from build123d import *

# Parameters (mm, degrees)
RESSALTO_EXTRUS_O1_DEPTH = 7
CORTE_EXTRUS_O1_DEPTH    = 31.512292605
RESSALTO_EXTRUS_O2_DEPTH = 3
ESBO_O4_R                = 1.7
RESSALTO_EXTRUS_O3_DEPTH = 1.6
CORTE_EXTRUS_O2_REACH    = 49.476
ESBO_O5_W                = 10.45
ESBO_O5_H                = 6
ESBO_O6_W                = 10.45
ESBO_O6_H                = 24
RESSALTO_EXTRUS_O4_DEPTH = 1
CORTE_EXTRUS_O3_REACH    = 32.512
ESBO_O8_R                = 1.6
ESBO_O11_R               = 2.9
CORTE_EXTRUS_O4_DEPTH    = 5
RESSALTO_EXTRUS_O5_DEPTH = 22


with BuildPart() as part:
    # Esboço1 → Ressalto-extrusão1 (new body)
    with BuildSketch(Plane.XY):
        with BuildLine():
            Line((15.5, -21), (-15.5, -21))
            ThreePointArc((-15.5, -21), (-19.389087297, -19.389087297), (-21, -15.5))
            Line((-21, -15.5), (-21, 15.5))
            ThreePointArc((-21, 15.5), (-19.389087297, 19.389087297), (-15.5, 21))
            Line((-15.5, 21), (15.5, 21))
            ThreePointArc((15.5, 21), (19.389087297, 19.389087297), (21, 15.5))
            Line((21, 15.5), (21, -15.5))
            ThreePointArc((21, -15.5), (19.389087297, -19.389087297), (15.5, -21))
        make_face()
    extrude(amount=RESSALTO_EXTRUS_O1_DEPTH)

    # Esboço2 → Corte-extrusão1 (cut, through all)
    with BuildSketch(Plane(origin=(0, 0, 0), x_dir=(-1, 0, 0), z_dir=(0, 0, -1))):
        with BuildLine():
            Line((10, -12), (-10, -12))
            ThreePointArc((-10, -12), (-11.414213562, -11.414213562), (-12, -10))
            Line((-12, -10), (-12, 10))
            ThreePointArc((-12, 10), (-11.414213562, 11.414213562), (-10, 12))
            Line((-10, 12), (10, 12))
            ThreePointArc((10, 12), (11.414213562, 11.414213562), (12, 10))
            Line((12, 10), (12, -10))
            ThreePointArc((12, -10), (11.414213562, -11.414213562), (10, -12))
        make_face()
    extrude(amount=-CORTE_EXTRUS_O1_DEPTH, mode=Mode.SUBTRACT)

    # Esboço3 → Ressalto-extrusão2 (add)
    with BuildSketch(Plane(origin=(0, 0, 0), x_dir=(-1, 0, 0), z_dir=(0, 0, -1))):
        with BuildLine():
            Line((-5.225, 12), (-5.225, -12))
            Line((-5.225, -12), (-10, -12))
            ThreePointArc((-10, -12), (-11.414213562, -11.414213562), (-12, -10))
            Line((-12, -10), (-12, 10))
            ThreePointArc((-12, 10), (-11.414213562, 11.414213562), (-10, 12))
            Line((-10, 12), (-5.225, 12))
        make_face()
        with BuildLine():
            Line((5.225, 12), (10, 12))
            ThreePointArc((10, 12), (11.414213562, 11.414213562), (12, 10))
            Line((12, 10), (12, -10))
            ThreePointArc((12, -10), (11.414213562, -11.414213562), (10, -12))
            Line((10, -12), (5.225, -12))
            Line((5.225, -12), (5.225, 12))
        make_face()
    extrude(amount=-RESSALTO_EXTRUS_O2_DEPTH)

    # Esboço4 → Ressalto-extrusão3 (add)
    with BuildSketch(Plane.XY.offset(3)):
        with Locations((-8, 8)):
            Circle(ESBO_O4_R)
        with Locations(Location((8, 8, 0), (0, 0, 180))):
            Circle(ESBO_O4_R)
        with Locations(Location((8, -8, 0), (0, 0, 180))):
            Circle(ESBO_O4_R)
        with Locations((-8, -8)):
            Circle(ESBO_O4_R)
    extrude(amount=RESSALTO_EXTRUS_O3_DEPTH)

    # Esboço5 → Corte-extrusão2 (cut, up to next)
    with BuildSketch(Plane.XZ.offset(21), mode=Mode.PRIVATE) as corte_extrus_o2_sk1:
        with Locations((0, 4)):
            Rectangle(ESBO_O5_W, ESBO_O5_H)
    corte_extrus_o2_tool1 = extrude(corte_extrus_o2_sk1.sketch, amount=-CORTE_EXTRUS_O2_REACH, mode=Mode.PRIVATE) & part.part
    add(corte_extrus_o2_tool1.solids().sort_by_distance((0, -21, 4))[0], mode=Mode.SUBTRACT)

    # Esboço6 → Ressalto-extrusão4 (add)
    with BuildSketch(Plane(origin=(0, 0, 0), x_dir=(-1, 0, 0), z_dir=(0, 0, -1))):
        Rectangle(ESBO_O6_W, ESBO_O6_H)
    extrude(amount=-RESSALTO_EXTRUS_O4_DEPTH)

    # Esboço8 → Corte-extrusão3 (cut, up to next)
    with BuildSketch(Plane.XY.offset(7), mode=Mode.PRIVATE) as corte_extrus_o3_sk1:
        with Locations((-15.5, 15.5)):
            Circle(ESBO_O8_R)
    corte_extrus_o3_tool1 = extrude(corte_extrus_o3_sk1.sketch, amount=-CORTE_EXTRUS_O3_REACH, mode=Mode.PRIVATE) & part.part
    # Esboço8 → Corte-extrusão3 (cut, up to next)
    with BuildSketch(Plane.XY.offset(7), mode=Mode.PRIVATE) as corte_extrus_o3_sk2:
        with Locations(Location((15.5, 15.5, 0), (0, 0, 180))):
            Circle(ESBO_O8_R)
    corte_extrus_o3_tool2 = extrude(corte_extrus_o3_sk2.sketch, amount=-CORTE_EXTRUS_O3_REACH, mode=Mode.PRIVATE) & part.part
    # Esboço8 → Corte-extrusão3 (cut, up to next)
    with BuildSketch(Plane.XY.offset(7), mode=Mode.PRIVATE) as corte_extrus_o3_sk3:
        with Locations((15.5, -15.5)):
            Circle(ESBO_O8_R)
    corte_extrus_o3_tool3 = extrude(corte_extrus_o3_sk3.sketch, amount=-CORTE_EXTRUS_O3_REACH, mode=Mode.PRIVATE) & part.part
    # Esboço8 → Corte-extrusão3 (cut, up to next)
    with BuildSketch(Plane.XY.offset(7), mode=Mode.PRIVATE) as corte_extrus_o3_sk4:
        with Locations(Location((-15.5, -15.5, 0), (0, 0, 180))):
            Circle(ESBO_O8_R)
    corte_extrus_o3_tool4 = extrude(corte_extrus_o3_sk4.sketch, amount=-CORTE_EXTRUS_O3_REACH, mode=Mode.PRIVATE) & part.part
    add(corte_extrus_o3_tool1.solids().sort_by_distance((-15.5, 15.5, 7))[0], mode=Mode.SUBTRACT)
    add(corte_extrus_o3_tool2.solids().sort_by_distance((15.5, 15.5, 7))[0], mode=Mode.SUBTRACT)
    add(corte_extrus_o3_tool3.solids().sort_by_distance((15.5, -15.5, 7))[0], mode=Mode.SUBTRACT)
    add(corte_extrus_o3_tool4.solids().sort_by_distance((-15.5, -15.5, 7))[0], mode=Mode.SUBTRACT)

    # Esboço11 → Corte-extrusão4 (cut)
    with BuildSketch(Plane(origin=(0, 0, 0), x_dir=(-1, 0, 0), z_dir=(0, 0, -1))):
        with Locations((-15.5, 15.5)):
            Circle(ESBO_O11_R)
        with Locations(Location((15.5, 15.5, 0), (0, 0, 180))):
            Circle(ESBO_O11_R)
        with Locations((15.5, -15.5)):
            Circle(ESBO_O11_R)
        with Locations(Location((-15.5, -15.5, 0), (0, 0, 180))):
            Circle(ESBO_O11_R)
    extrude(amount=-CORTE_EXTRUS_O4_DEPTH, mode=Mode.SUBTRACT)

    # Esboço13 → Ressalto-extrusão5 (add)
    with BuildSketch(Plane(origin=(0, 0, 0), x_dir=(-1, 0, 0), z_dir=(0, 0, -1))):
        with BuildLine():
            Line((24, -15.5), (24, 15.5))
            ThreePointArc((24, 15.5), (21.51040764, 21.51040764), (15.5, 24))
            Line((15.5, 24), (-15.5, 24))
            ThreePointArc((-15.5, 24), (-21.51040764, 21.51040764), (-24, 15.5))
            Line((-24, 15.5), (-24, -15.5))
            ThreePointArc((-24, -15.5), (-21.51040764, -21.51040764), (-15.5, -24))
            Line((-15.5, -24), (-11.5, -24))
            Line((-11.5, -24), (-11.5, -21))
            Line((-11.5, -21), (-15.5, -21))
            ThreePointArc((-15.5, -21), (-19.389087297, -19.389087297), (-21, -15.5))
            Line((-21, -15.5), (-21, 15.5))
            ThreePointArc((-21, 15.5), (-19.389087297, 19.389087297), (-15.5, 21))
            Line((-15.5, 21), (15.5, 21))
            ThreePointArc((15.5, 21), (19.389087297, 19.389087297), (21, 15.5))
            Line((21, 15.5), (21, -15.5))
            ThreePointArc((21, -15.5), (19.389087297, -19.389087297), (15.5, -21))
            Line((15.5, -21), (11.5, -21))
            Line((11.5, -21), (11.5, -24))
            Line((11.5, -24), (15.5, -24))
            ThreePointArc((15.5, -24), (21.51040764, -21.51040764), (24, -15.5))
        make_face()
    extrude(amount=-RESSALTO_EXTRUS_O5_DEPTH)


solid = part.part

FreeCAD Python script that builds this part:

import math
import FreeCAD as App
import Part
import Sketcher

V = App.Vector
Q = App.Units.Quantity


def add_polygon(sketch, points):
    """Adds a closed chain of lines whose ends are joined by coincident constraints."""
    first, n = sketch.GeometryCount, len(points)
    for a, b in zip(points, points[1:] + points[:1]):
        sketch.addGeometry(Part.LineSegment(App.Vector(*a, 0), App.Vector(*b, 0)), False)
    for i in range(n):
        sketch.addConstraint(Sketcher.Constraint("Coincident", first + i, 2, first + (i + 1) % n, 1))

doc = App.newDocument("Part")
body = doc.addObject("PartDesign::Body", "Body")

sketch1 = body.newObject("Sketcher::SketchObject", "Sketch")
sketch1.AttachmentSupport = (doc.getObject("XY_Plane"), [""])
sketch1.MapMode = "FlatFace"
sketch1.addGeometry(Part.LineSegment(V(-15.5, -21, 0), V(15.5, -21, 0)), False)
sketch1.addGeometry(Part.ArcOfCircle(Part.Circle(V(15.5, -15.5, 0), V(0, 0, 1), 5.5), math.radians(-90), math.radians(0)), False)
sketch1.addGeometry(Part.LineSegment(V(21, -15.5, 0), V(21, 15.5, 0)), False)
sketch1.addGeometry(Part.ArcOfCircle(Part.Circle(V(15.5, 15.5, 0), V(0, 0, 1), 5.5), math.radians(0), math.radians(90)), False)
sketch1.addGeometry(Part.LineSegment(V(15.5, 21, 0), V(-15.5, 21, 0)), False)
sketch1.addGeometry(Part.ArcOfCircle(Part.Circle(V(-15.5, 15.5, 0), V(0, 0, 1), 5.5), math.radians(90), math.radians(180)), False)
sketch1.addGeometry(Part.LineSegment(V(-21, 15.5, 0), V(-21, -15.5, 0)), False)
sketch1.addGeometry(Part.ArcOfCircle(Part.Circle(V(-15.5, -15.5, 0), V(0, 0, 1), 5.5), math.radians(180), math.radians(270)), False)
sketch1.addConstraint(Sketcher.Constraint("Tangent", 0, 2, 1, 1))
sketch1.addConstraint(Sketcher.Constraint("Tangent", 1, 2, 2, 1))
sketch1.addConstraint(Sketcher.Constraint("Tangent", 2, 2, 3, 1))
sketch1.addConstraint(Sketcher.Constraint("Tangent", 3, 2, 4, 1))
sketch1.addConstraint(Sketcher.Constraint("Tangent", 4, 2, 5, 1))
sketch1.addConstraint(Sketcher.Constraint("Tangent", 5, 2, 6, 1))
sketch1.addConstraint(Sketcher.Constraint("Tangent", 6, 2, 7, 1))
sketch1.addConstraint(Sketcher.Constraint("Tangent", 7, 2, 0, 1))
sketch1.addConstraint(Sketcher.Constraint("Horizontal", 0))
sketch1.addConstraint(Sketcher.Constraint("Vertical", 2))
sketch1.addConstraint(Sketcher.Constraint("Horizontal", 4))
sketch1.addConstraint(Sketcher.Constraint("Vertical", 6))
sketch1.addConstraint(Sketcher.Constraint("Equal", 1, 3))
sketch1.addConstraint(Sketcher.Constraint("Equal", 3, 5))
sketch1.addConstraint(Sketcher.Constraint("Equal", 5, 7))
sketch1.addConstraint(Sketcher.Constraint("Symmetric", 1, 3, 5, 3, -1, 1))
sketch1.addConstraint(Sketcher.Constraint("Equal", 4, 2))
sketch1.addConstraint(Sketcher.Constraint("Radius", 1, Q("5.5 mm")))
sketch1.addConstraint(Sketcher.Constraint("DistanceX", 0, 1, 0, 2, Q("31 mm")))
pad1 = body.newObject("PartDesign::Pad", "Pad")
pad1.Profile = sketch1
pad1.Length = 7

sketch2 = body.newObject("Sketcher::SketchObject", "Sketch001")
sketch2.AttachmentSupport = (doc.getObject("XY_Plane"), [""])
sketch2.MapMode = "FlatFace"
sketch2.addGeometry(Part.LineSegment(V(10, -12, 0), V(-10, -12, 0)), False)
sketch2.addGeometry(Part.ArcOfCircle(Part.Circle(V(-10, -10, 0), V(0, 0, 1), 2), math.radians(-180), math.radians(-90)), False)
sketch2.addGeometry(Part.LineSegment(V(-12, -10, 0), V(-12, 10, 0)), False)
sketch2.addGeometry(Part.ArcOfCircle(Part.Circle(V(-10, 10, 0), V(0, 0, 1), 2), math.radians(90), math.radians(180)), False)
sketch2.addGeometry(Part.LineSegment(V(-10, 12, 0), V(10, 12, 0)), False)
sketch2.addGeometry(Part.ArcOfCircle(Part.Circle(V(10, 10, 0), V(0, 0, 1), 2), math.radians(0), math.radians(90)), False)
sketch2.addGeometry(Part.LineSegment(V(12, 10, 0), V(12, -10, 0)), False)
sketch2.addGeometry(Part.ArcOfCircle(Part.Circle(V(10, -10, 0), V(0, 0, 1), 2), math.radians(-90), math.radians(0)), False)
sketch2.addConstraint(Sketcher.Constraint("Tangent", 0, 2, 1, 2))
sketch2.addConstraint(Sketcher.Constraint("Tangent", 1, 1, 2, 1))
sketch2.addConstraint(Sketcher.Constraint("Tangent", 2, 2, 3, 2))
sketch2.addConstraint(Sketcher.Constraint("Tangent", 3, 1, 4, 1))
sketch2.addConstraint(Sketcher.Constraint("Tangent", 4, 2, 5, 2))
sketch2.addConstraint(Sketcher.Constraint("Tangent", 5, 1, 6, 1))
sketch2.addConstraint(Sketcher.Constraint("Tangent", 6, 2, 7, 2))
sketch2.addConstraint(Sketcher.Constraint("Tangent", 7, 1, 0, 1))
sketch2.addConstraint(Sketcher.Constraint("Horizontal", 0))
sketch2.addConstraint(Sketcher.Constraint("Vertical", 2))
sketch2.addConstraint(Sketcher.Constraint("Horizontal", 4))
sketch2.addConstraint(Sketcher.Constraint("Vertical", 6))
sketch2.addConstraint(Sketcher.Constraint("Equal", 1, 3))
sketch2.addConstraint(Sketcher.Constraint("Equal", 3, 5))
sketch2.addConstraint(Sketcher.Constraint("Equal", 5, 7))
sketch2.addConstraint(Sketcher.Constraint("Symmetric", 1, 3, 5, 3, -1, 1))
sketch2.addConstraint(Sketcher.Constraint("Equal", 4, 2))
sketch2.addConstraint(Sketcher.Constraint("Radius", 1, Q("2 mm")))
sketch2.addConstraint(Sketcher.Constraint("DistanceX", 0, 2, 0, 1, Q("20 mm")))
pocket1 = body.newObject("PartDesign::Pocket", "Pocket")
pocket1.Profile = sketch2
pocket1.Type = "ThroughAll"
pocket1.Reversed = True

sketch3 = body.newObject("Sketcher::SketchObject", "Sketch002")
sketch3.AttachmentSupport = (doc.getObject("XY_Plane"), [""])
sketch3.MapMode = "FlatFace"
sketch3.addGeometry(Part.LineSegment(V(5.225, -12, 0), V(5.225, 12, 0)), False)
sketch3.addGeometry(Part.LineSegment(V(5.225, 12, 0), V(10, 12, 0)), False)
sketch3.addGeometry(Part.ArcOfCircle(Part.Circle(V(10, 10, 0), V(0, 0, 1), 2), math.radians(0), math.radians(90)), False)
sketch3.addGeometry(Part.LineSegment(V(12, 10, 0), V(12, -10, 0)), False)
sketch3.addGeometry(Part.ArcOfCircle(Part.Circle(V(10, -10, 0), V(0, 0, 1), 2), math.radians(-90), math.radians(0)), False)
sketch3.addGeometry(Part.LineSegment(V(10, -12, 0), V(5.225, -12, 0)), False)
sketch3.addGeometry(Part.LineSegment(V(-10, 12, 0), V(-5.225, 12, 0)), False)
sketch3.addGeometry(Part.LineSegment(V(-5.225, 12, 0), V(-5.225, -12, 0)), False)
sketch3.addGeometry(Part.LineSegment(V(-5.225, -12, 0), V(-10, -12, 0)), False)
sketch3.addGeometry(Part.ArcOfCircle(Part.Circle(V(-10, -10, 0), V(0, 0, 1), 2), math.radians(-180), math.radians(-90)), False)
sketch3.addGeometry(Part.LineSegment(V(-12, -10, 0), V(-12, 10, 0)), False)
sketch3.addGeometry(Part.ArcOfCircle(Part.Circle(V(-10, 10, 0), V(0, 0, 1), 2), math.radians(90), math.radians(180)), False)
sketch3.addConstraint(Sketcher.Constraint("Coincident", 0, 2, 1, 1))
sketch3.addConstraint(Sketcher.Constraint("Tangent", 1, 2, 2, 2))
sketch3.addConstraint(Sketcher.Constraint("Tangent", 2, 1, 3, 1))
sketch3.addConstraint(Sketcher.Constraint("Tangent", 3, 2, 4, 2))
sketch3.addConstraint(Sketcher.Constraint("Tangent", 4, 1, 5, 1))
sketch3.addConstraint(Sketcher.Constraint("Coincident", 5, 2, 0, 1))
sketch3.addConstraint(Sketcher.Constraint("Coincident", 6, 2, 7, 1))
sketch3.addConstraint(Sketcher.Constraint("Coincident", 7, 2, 8, 1))
sketch3.addConstraint(Sketcher.Constraint("Tangent", 8, 2, 9, 2))
sketch3.addConstraint(Sketcher.Constraint("Tangent", 9, 1, 10, 1))
sketch3.addConstraint(Sketcher.Constraint("Tangent", 10, 2, 11, 2))
sketch3.addConstraint(Sketcher.Constraint("Tangent", 11, 1, 6, 1))
sketch3.addConstraint(Sketcher.Constraint("Vertical", 0))
sketch3.addConstraint(Sketcher.Constraint("Horizontal", 1))
sketch3.addConstraint(Sketcher.Constraint("Vertical", 3))
sketch3.addConstraint(Sketcher.Constraint("Horizontal", 5))
sketch3.addConstraint(Sketcher.Constraint("Horizontal", 6))
sketch3.addConstraint(Sketcher.Constraint("Vertical", 7))
sketch3.addConstraint(Sketcher.Constraint("Horizontal", 8))
sketch3.addConstraint(Sketcher.Constraint("Vertical", 10))
sketch3.addConstraint(Sketcher.Constraint("Equal", 2, 4))
sketch3.addConstraint(Sketcher.Constraint("Equal", 4, 9))
sketch3.addConstraint(Sketcher.Constraint("Equal", 9, 11))
sketch3.addConstraint(Sketcher.Constraint("Symmetric", 2, 3, 9, 3, -1, 1))
sketch3.addConstraint(Sketcher.Constraint("Symmetric", 5, 2, 6, 2, -1, 1))
sketch3.addConstraint(Sketcher.Constraint("Horizontal", 4, 3, 9, 3))
sketch3.addConstraint(Sketcher.Constraint("Radius", 2, Q("2 mm")))
sketch3.addConstraint(Sketcher.Constraint("DistanceY", 0, 1, 0, 2, Q("24 mm")))
sketch3.addConstraint(Sketcher.Constraint("DistanceX", -1, 1, 2, 3, Q("10 mm")))
sketch3.addConstraint(Sketcher.Constraint("DistanceX", 1, 1, 1, 2, Q("4.775 mm")))
pad2 = body.newObject("PartDesign::Pad", "Pad001")
pad2.Profile = sketch3
pad2.Length = 3

sketch4 = body.newObject("Sketcher::SketchObject", "Sketch003")
sketch4.AttachmentSupport = (doc.getObject("XY_Plane"), [""])
sketch4.MapMode = "FlatFace"
sketch4.AttachmentOffset = App.Placement(V(0, 0, 3), App.Rotation())
sketch4.addGeometry(Part.Circle(V(-8, 8, 0), V(0, 0, 1), 1.7), False)
sketch4.addGeometry(Part.Circle(V(8, 8, 0), V(0, 0, 1), 1.7), False)
sketch4.addGeometry(Part.Circle(V(8, -8, 0), V(0, 0, 1), 1.7), False)
sketch4.addGeometry(Part.Circle(V(-8, -8, 0), V(0, 0, 1), 1.7), False)
sketch4.addConstraint(Sketcher.Constraint("Equal", 0, 1))
sketch4.addConstraint(Sketcher.Constraint("Equal", 1, 2))
sketch4.addConstraint(Sketcher.Constraint("Equal", 2, 3))
sketch4.addConstraint(Sketcher.Constraint("Symmetric", 0, 3, 2, 3, -1, 1))
sketch4.addConstraint(Sketcher.Constraint("Symmetric", 1, 3, 3, 3, -1, 1))
sketch4.addConstraint(Sketcher.Constraint("Symmetric", 0, 3, 1, 3, -2))
sketch4.addConstraint(Sketcher.Constraint("Diameter", 0, Q("3.4 mm")))
sketch4.addConstraint(Sketcher.Constraint("DistanceX", 0, 3, -1, 1, Q("8 mm")))
sketch4.addConstraint(Sketcher.Constraint("DistanceY", -1, 1, 0, 3, Q("8 mm")))
pad3 = body.newObject("PartDesign::Pad", "Pad002")
pad3.Profile = sketch4
pad3.Length = 1.6

sketch5 = body.newObject("Sketcher::SketchObject", "Sketch004")
sketch5.AttachmentSupport = (doc.getObject("XZ_Plane"), [""])
sketch5.MapMode = "FlatFace"
sketch5.AttachmentOffset = App.Placement(V(0, 0, 21), App.Rotation())
add_polygon(sketch5, [(-5.225, 7), (-5.225, 1), (5.225, 1), (5.225, 7)])
sketch5.addConstraint(Sketcher.Constraint("Vertical", 0))
sketch5.addConstraint(Sketcher.Constraint("Horizontal", 1))
sketch5.addConstraint(Sketcher.Constraint("Vertical", 2))
sketch5.addConstraint(Sketcher.Constraint("Horizontal", 3))
sketch5.addConstraint(Sketcher.Constraint("DistanceY", 0, 2, 0, 1, Q("6 mm")))
sketch5.addConstraint(Sketcher.Constraint("DistanceY", -1, 1, 0, 2, Q("1 mm")))
sketch5.addConstraint(Sketcher.Constraint("DistanceX", 1, 1, 1, 2, Q("10.45 mm")))
sketch5.addConstraint(Sketcher.Constraint("DistanceX", 0, 2, -1, 1, Q("5.225 mm")))
pocket2 = body.newObject("PartDesign::Pocket", "Pocket001")
pocket2.Profile = sketch5
pocket2.Type = "UpToFirst"

sketch6 = body.newObject("Sketcher::SketchObject", "Sketch005")
sketch6.AttachmentSupport = (doc.getObject("XY_Plane"), [""])
sketch6.MapMode = "FlatFace"
add_polygon(sketch6, [(5.225, 12), (5.225, -12), (-5.225, -12), (-5.225, 12)])
sketch6.addConstraint(Sketcher.Constraint("Vertical", 0))
sketch6.addConstraint(Sketcher.Constraint("Horizontal", 1))
sketch6.addConstraint(Sketcher.Constraint("Vertical", 2))
sketch6.addConstraint(Sketcher.Constraint("Horizontal", 3))
sketch6.addConstraint(Sketcher.Constraint("Symmetric", 0, 2, 2, 2, -1, 1))
sketch6.addConstraint(Sketcher.Constraint("DistanceY", 0, 2, 0, 1, Q("24 mm")))
sketch6.addConstraint(Sketcher.Constraint("DistanceX", 1, 2, 1, 1, Q("10.45 mm")))
pad4 = body.newObject("PartDesign::Pad", "Pad003")
pad4.Profile = sketch6
pad4.Length = 1

sketch7 = body.newObject("Sketcher::SketchObject", "Sketch006")
sketch7.AttachmentSupport = (doc.getObject("XY_Plane"), [""])
sketch7.MapMode = "FlatFace"
sketch7.AttachmentOffset = App.Placement(V(0, 0, 7), App.Rotation())
sketch7.addGeometry(Part.Circle(V(-15.5, 15.5, 0), V(0, 0, 1), 1.6), False)
sketch7.addConstraint(Sketcher.Constraint("Diameter", 0, Q("3.2 mm")))
sketch7.addConstraint(Sketcher.Constraint("DistanceX", 0, 3, -1, 1, Q("15.5 mm")))
sketch7.addConstraint(Sketcher.Constraint("DistanceY", -1, 1, 0, 3, Q("15.5 mm")))
pocket3 = body.newObject("PartDesign::Pocket", "Pocket002")
pocket3.Profile = sketch7
pocket3.Type = "UpToFirst"

sketch8 = body.newObject("Sketcher::SketchObject", "Sketch007")
sketch8.AttachmentSupport = (doc.getObject("XY_Plane"), [""])
sketch8.MapMode = "FlatFace"
sketch8.AttachmentOffset = App.Placement(V(0, 0, 7), App.Rotation())
sketch8.addGeometry(Part.Circle(V(15.5, 15.5, 0), V(0, 0, 1), 1.6), False)
sketch8.addConstraint(Sketcher.Constraint("Diameter", 0, Q("3.2 mm")))
sketch8.addConstraint(Sketcher.Constraint("DistanceX", -1, 1, 0, 3, Q("15.5 mm")))
sketch8.addConstraint(Sketcher.Constraint("DistanceY", -1, 1, 0, 3, Q("15.5 mm")))
pocket4 = body.newObject("PartDesign::Pocket", "Pocket003")
pocket4.Profile = sketch8
pocket4.Type = "UpToFirst"

sketch9 = body.newObject("Sketcher::SketchObject", "Sketch008")
sketch9.AttachmentSupport = (doc.getObject("XY_Plane"), [""])
sketch9.MapMode = "FlatFace"
sketch9.AttachmentOffset = App.Placement(V(0, 0, 7), App.Rotation())
sketch9.addGeometry(Part.Circle(V(15.5, -15.5, 0), V(0, 0, 1), 1.6), False)
sketch9.addConstraint(Sketcher.Constraint("Diameter", 0, Q("3.2 mm")))
sketch9.addConstraint(Sketcher.Constraint("DistanceX", -1, 1, 0, 3, Q("15.5 mm")))
sketch9.addConstraint(Sketcher.Constraint("DistanceY", 0, 3, -1, 1, Q("15.5 mm")))
pocket5 = body.newObject("PartDesign::Pocket", "Pocket004")
pocket5.Profile = sketch9
pocket5.Type = "UpToFirst"

sketch10 = body.newObject("Sketcher::SketchObject", "Sketch009")
sketch10.AttachmentSupport = (doc.getObject("XY_Plane"), [""])
sketch10.MapMode = "FlatFace"
sketch10.AttachmentOffset = App.Placement(V(0, 0, 7), App.Rotation())
sketch10.addGeometry(Part.Circle(V(-15.5, -15.5, 0), V(0, 0, 1), 1.6), False)
sketch10.addConstraint(Sketcher.Constraint("Diameter", 0, Q("3.2 mm")))
sketch10.addConstraint(Sketcher.Constraint("DistanceX", 0, 3, -1, 1, Q("15.5 mm")))
sketch10.addConstraint(Sketcher.Constraint("DistanceY", 0, 3, -1, 1, Q("15.5 mm")))
pocket6 = body.newObject("PartDesign::Pocket", "Pocket005")
pocket6.Profile = sketch10
pocket6.Type = "UpToFirst"

sketch11 = body.newObject("Sketcher::SketchObject", "Sketch010")
sketch11.AttachmentSupport = (doc.getObject("XY_Plane"), [""])
sketch11.MapMode = "FlatFace"
sketch11.addGeometry(Part.Circle(V(15.5, 15.5, 0), V(0, 0, 1), 2.9), False)
sketch11.addGeometry(Part.Circle(V(-15.5, 15.5, 0), V(0, 0, 1), 2.9), False)
sketch11.addGeometry(Part.Circle(V(-15.5, -15.5, 0), V(0, 0, 1), 2.9), False)
sketch11.addGeometry(Part.Circle(V(15.5, -15.5, 0), V(0, 0, 1), 2.9), False)
sketch11.addConstraint(Sketcher.Constraint("Equal", 0, 1))
sketch11.addConstraint(Sketcher.Constraint("Equal", 1, 2))
sketch11.addConstraint(Sketcher.Constraint("Equal", 2, 3))
sketch11.addConstraint(Sketcher.Constraint("Symmetric", 0, 3, 2, 3, -1, 1))
sketch11.addConstraint(Sketcher.Constraint("Symmetric", 1, 3, 3, 3, -1, 1))
sketch11.addConstraint(Sketcher.Constraint("Symmetric", 0, 3, 1, 3, -2))
sketch11.addConstraint(Sketcher.Constraint("Diameter", 0, Q("5.8 mm")))
sketch11.addConstraint(Sketcher.Constraint("DistanceX", 1, 3, 0, 3, Q("31 mm")))
sketch11.addConstraint(Sketcher.Constraint("DistanceY", 2, 3, 1, 3, Q("31 mm")))
pocket7 = body.newObject("PartDesign::Pocket", "Pocket006")
pocket7.Profile = sketch11
pocket7.Length = 5
pocket7.Reversed = True

sketch12 = body.newObject("Sketcher::SketchObject", "Sketch011")
sketch12.AttachmentSupport = (doc.getObject("XY_Plane"), [""])
sketch12.MapMode = "FlatFace"
sketch12.addGeometry(Part.LineSegment(V(-24, -15.5, 0), V(-24, 15.5, 0)), False)
sketch12.addGeometry(Part.ArcOfCircle(Part.Circle(V(-15.5, 15.5, 0), V(0, 0, 1), 8.5), math.radians(90), math.radians(180)), False)
sketch12.addGeometry(Part.LineSegment(V(-15.5, 24, 0), V(15.5, 24, 0)), False)
sketch12.addGeometry(Part.ArcOfCircle(Part.Circle(V(15.5, 15.5, 0), V(0, 0, 1), 8.5), math.radians(0), math.radians(90)), False)
sketch12.addGeometry(Part.LineSegment(V(24, 15.5, 0), V(24, -15.5, 0)), False)
sketch12.addGeometry(Part.ArcOfCircle(Part.Circle(V(15.5, -15.5, 0), V(0, 0, 1), 8.5), math.radians(-90), math.radians(0)), False)
sketch12.addGeometry(Part.LineSegment(V(15.5, -24, 0), V(11.5, -24, 0)), False)
sketch12.addGeometry(Part.LineSegment(V(11.5, -24, 0), V(11.5, -21, 0)), False)
sketch12.addGeometry(Part.LineSegment(V(11.5, -21, 0), V(15.5, -21, 0)), False)
sketch12.addGeometry(Part.ArcOfCircle(Part.Circle(V(15.5, -15.5, 0), V(0, 0, 1), 5.5), math.radians(-90), math.radians(0)), False)
sketch12.addGeometry(Part.LineSegment(V(21, -15.5, 0), V(21, 15.5, 0)), False)
sketch12.addGeometry(Part.ArcOfCircle(Part.Circle(V(15.5, 15.5, 0), V(0, 0, 1), 5.5), math.radians(0), math.radians(90)), False)
sketch12.addGeometry(Part.LineSegment(V(15.5, 21, 0), V(-15.5, 21, 0)), False)
sketch12.addGeometry(Part.ArcOfCircle(Part.Circle(V(-15.5, 15.5, 0), V(0, 0, 1), 5.5), math.radians(90), math.radians(180)), False)
sketch12.addGeometry(Part.LineSegment(V(-21, 15.5, 0), V(-21, -15.5, 0)), False)
sketch12.addGeometry(Part.ArcOfCircle(Part.Circle(V(-15.5, -15.5, 0), V(0, 0, 1), 5.5), math.radians(180), math.radians(270)), False)
sketch12.addGeometry(Part.LineSegment(V(-15.5, -21, 0), V(-11.5, -21, 0)), False)
sketch12.addGeometry(Part.LineSegment(V(-11.5, -21, 0), V(-11.5, -24, 0)), False)
sketch12.addGeometry(Part.LineSegment(V(-11.5, -24, 0), V(-15.5, -24, 0)), False)
sketch12.addGeometry(Part.ArcOfCircle(Part.Circle(V(-15.5, -15.5, 0), V(0, 0, 1), 8.5), math.radians(180), math.radians(270)), False)
sketch12.addConstraint(Sketcher.Constraint("Tangent", 0, 2, 1, 2))
sketch12.addConstraint(Sketcher.Constraint("Tangent", 1, 1, 2, 1))
sketch12.addConstraint(Sketcher.Constraint("Tangent", 2, 2, 3, 2))
sketch12.addConstraint(Sketcher.Constraint("Tangent", 3, 1, 4, 1))
sketch12.addConstraint(Sketcher.Constraint("Tangent", 4, 2, 5, 2))
sketch12.addConstraint(Sketcher.Constraint("Tangent", 5, 1, 6, 1))
sketch12.addConstraint(Sketcher.Constraint("Coincident", 6, 2, 7, 1))
sketch12.addConstraint(Sketcher.Constraint("Coincident", 7, 2, 8, 1))
sketch12.addConstraint(Sketcher.Constraint("Tangent", 8, 2, 9, 1))
sketch12.addConstraint(Sketcher.Constraint("Tangent", 9, 2, 10, 1))
sketch12.addConstraint(Sketcher.Constraint("Tangent", 10, 2, 11, 1))
sketch12.addConstraint(Sketcher.Constraint("Tangent", 11, 2, 12, 1))
sketch12.addConstraint(Sketcher.Constraint("Tangent", 12, 2, 13, 1))
sketch12.addConstraint(Sketcher.Constraint("Tangent", 13, 2, 14, 1))
sketch12.addConstraint(Sketcher.Constraint("Tangent", 14, 2, 15, 1))
sketch12.addConstraint(Sketcher.Constraint("Tangent", 15, 2, 16, 1))
sketch12.addConstraint(Sketcher.Constraint("Coincident", 16, 2, 17, 1))
sketch12.addConstraint(Sketcher.Constraint("Coincident", 17, 2, 18, 1))
sketch12.addConstraint(Sketcher.Constraint("Tangent", 18, 2, 19, 2))
sketch12.addConstraint(Sketcher.Constraint("Tangent", 19, 1, 0, 1))
sketch12.addConstraint(Sketcher.Constraint("Vertical", 0))
sketch12.addConstraint(Sketcher.Constraint("Horizontal", 2))
sketch12.addConstraint(Sketcher.Constraint("Vertical", 4))
sketch12.addConstraint(Sketcher.Constraint("Horizontal", 6))
sketch12.addConstraint(Sketcher.Constraint("Vertical", 7))
sketch12.addConstraint(Sketcher.Constraint("Horizontal", 8))
sketch12.addConstraint(Sketcher.Constraint("Vertical", 10))
sketch12.addConstraint(Sketcher.Constraint("Horizontal", 12))
sketch12.addConstraint(Sketcher.Constraint("Vertical", 14))
sketch12.addConstraint(Sketcher.Constraint("Horizontal", 16))
sketch12.addConstraint(Sketcher.Constraint("Vertical", 17))
sketch12.addConstraint(Sketcher.Constraint("Horizontal", 18))
sketch12.addConstraint(Sketcher.Constraint("Coincident", 9, 3, 5, 3))
sketch12.addConstraint(Sketcher.Constraint("Coincident", 11, 3, 3, 3))
sketch12.addConstraint(Sketcher.Constraint("Coincident", 13, 3, 1, 3))
sketch12.addConstraint(Sketcher.Constraint("Coincident", 19, 3, 15, 3))
sketch12.addConstraint(Sketcher.Constraint("Equal", 1, 3))
sketch12.addConstraint(Sketcher.Constraint("Equal", 3, 5))
sketch12.addConstraint(Sketcher.Constraint("Equal", 13, 15))
sketch12.addConstraint(Sketcher.Constraint("Symmetric", 1, 3, 5, 3, -1, 1))
sketch12.addConstraint(Sketcher.Constraint("Symmetric", 7, 2, 16, 2, -2))
sketch12.addConstraint(Sketcher.Constraint("Equal", 12, 0))
sketch12.addConstraint(Sketcher.Constraint("Radius", 1, Q("8.5 mm")))
sketch12.addConstraint(Sketcher.Constraint("Radius", 9, Q("5.5 mm")))
sketch12.addConstraint(Sketcher.Constraint("DistanceX", 2, 1, 2, 2, Q("31 mm")))
sketch12.addConstraint(Sketcher.Constraint("DistanceX", 6, 2, 6, 1, Q("4 mm")))
pad5 = body.newObject("PartDesign::Pad", "Pad004")
pad5.Profile = sketch12
pad5.Length = 22

doc.recompute()
